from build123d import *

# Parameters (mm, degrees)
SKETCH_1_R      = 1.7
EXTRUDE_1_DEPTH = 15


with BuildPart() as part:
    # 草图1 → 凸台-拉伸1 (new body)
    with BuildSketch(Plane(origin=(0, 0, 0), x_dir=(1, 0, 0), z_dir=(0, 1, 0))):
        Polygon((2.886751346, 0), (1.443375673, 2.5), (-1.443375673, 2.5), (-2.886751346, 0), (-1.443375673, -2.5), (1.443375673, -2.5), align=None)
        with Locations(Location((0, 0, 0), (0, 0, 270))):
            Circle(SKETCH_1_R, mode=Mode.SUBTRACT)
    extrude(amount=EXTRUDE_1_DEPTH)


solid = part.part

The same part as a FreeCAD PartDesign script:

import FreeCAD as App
import Part
import Sketcher

V = App.Vector
Q = App.Units.Quantity

doc = App.newDocument("Part")
body = doc.addObject("PartDesign::Body", "Body")

sketch1 = body.newObject("Sketcher::SketchObject", "Sketch")
sketch1.AttachmentSupport = (doc.getObject("XZ_Plane"), [""])
sketch1.MapMode = "FlatFace"
sketch1.addGeometry([
    Part.LineSegment(V(2.9, 0, 0), V(1.4, -2.5, 0)),
    Part.LineSegment(V(1.4, -2.5, 0), V(-1.4, -2.5, 0)),
    Part.LineSegment(V(-1.4, -2.5, 0), V(-2.9, 0, 0)),
    Part.LineSegment(V(-2.9, 0, 0), V(-1.4, 2.5, 0)),
    Part.LineSegment(V(-1.4, 2.5, 0), V(1.4, 2.5, 0)),
    Part.LineSegment(V(1.4, 2.5, 0), V(2.9, 0, 0)),
    Part.Circle(V(0, 0, 0), V(0, 0, 1), 1.7),
], False)
sketch1.addConstraint([
    Sketcher.Constraint("Coincident", 0, 2, 1, 1),
    Sketcher.Constraint("Coincident", 1, 2, 2, 1),
    Sketcher.Constraint("Coincident", 2, 2, 3, 1),
    Sketcher.Constraint("Coincident", 3, 2, 4, 1),
    Sketcher.Constraint("Coincident", 4, 2, 5, 1),
    Sketcher.Constraint("Coincident", 5, 2, 0, 1),
    Sketcher.Constraint("Horizontal", 1),
    Sketcher.Constraint("Horizontal", 4),
    Sketcher.Constraint("Coincident", 6, 3, -1, 1),
    Sketcher.Constraint("Symmetric", 0, 2, 3, 2, -1, 1),
    Sketcher.Constraint("Symmetric", 2, 2, 5, 2, -1, 1),
    Sketcher.Constraint("PointOnObject", 2, 2, -1),
    Sketcher.Constraint("Parallel", 2, 5),
    Sketcher.Constraint("Vertical", 1, 2, 3, 2),
    Sketcher.Constraint("Diameter", 6, Q("3.4 mm")),
    Sketcher.Constraint("Angle", 0, Q("-120 deg")),
    Sketcher.Constraint("DistanceY", 1, 2, 3, 2, Q("5 mm")),
    Sketcher.Constraint("DistanceX", 1, 2, 1, 1, Q("2.886751 mm")),
])
pad1 = body.newObject("PartDesign::Pad", "Pad")
pad1.Profile = sketch1
pad1.Length = 15
pad1.Reversed = True

doc.recompute()
